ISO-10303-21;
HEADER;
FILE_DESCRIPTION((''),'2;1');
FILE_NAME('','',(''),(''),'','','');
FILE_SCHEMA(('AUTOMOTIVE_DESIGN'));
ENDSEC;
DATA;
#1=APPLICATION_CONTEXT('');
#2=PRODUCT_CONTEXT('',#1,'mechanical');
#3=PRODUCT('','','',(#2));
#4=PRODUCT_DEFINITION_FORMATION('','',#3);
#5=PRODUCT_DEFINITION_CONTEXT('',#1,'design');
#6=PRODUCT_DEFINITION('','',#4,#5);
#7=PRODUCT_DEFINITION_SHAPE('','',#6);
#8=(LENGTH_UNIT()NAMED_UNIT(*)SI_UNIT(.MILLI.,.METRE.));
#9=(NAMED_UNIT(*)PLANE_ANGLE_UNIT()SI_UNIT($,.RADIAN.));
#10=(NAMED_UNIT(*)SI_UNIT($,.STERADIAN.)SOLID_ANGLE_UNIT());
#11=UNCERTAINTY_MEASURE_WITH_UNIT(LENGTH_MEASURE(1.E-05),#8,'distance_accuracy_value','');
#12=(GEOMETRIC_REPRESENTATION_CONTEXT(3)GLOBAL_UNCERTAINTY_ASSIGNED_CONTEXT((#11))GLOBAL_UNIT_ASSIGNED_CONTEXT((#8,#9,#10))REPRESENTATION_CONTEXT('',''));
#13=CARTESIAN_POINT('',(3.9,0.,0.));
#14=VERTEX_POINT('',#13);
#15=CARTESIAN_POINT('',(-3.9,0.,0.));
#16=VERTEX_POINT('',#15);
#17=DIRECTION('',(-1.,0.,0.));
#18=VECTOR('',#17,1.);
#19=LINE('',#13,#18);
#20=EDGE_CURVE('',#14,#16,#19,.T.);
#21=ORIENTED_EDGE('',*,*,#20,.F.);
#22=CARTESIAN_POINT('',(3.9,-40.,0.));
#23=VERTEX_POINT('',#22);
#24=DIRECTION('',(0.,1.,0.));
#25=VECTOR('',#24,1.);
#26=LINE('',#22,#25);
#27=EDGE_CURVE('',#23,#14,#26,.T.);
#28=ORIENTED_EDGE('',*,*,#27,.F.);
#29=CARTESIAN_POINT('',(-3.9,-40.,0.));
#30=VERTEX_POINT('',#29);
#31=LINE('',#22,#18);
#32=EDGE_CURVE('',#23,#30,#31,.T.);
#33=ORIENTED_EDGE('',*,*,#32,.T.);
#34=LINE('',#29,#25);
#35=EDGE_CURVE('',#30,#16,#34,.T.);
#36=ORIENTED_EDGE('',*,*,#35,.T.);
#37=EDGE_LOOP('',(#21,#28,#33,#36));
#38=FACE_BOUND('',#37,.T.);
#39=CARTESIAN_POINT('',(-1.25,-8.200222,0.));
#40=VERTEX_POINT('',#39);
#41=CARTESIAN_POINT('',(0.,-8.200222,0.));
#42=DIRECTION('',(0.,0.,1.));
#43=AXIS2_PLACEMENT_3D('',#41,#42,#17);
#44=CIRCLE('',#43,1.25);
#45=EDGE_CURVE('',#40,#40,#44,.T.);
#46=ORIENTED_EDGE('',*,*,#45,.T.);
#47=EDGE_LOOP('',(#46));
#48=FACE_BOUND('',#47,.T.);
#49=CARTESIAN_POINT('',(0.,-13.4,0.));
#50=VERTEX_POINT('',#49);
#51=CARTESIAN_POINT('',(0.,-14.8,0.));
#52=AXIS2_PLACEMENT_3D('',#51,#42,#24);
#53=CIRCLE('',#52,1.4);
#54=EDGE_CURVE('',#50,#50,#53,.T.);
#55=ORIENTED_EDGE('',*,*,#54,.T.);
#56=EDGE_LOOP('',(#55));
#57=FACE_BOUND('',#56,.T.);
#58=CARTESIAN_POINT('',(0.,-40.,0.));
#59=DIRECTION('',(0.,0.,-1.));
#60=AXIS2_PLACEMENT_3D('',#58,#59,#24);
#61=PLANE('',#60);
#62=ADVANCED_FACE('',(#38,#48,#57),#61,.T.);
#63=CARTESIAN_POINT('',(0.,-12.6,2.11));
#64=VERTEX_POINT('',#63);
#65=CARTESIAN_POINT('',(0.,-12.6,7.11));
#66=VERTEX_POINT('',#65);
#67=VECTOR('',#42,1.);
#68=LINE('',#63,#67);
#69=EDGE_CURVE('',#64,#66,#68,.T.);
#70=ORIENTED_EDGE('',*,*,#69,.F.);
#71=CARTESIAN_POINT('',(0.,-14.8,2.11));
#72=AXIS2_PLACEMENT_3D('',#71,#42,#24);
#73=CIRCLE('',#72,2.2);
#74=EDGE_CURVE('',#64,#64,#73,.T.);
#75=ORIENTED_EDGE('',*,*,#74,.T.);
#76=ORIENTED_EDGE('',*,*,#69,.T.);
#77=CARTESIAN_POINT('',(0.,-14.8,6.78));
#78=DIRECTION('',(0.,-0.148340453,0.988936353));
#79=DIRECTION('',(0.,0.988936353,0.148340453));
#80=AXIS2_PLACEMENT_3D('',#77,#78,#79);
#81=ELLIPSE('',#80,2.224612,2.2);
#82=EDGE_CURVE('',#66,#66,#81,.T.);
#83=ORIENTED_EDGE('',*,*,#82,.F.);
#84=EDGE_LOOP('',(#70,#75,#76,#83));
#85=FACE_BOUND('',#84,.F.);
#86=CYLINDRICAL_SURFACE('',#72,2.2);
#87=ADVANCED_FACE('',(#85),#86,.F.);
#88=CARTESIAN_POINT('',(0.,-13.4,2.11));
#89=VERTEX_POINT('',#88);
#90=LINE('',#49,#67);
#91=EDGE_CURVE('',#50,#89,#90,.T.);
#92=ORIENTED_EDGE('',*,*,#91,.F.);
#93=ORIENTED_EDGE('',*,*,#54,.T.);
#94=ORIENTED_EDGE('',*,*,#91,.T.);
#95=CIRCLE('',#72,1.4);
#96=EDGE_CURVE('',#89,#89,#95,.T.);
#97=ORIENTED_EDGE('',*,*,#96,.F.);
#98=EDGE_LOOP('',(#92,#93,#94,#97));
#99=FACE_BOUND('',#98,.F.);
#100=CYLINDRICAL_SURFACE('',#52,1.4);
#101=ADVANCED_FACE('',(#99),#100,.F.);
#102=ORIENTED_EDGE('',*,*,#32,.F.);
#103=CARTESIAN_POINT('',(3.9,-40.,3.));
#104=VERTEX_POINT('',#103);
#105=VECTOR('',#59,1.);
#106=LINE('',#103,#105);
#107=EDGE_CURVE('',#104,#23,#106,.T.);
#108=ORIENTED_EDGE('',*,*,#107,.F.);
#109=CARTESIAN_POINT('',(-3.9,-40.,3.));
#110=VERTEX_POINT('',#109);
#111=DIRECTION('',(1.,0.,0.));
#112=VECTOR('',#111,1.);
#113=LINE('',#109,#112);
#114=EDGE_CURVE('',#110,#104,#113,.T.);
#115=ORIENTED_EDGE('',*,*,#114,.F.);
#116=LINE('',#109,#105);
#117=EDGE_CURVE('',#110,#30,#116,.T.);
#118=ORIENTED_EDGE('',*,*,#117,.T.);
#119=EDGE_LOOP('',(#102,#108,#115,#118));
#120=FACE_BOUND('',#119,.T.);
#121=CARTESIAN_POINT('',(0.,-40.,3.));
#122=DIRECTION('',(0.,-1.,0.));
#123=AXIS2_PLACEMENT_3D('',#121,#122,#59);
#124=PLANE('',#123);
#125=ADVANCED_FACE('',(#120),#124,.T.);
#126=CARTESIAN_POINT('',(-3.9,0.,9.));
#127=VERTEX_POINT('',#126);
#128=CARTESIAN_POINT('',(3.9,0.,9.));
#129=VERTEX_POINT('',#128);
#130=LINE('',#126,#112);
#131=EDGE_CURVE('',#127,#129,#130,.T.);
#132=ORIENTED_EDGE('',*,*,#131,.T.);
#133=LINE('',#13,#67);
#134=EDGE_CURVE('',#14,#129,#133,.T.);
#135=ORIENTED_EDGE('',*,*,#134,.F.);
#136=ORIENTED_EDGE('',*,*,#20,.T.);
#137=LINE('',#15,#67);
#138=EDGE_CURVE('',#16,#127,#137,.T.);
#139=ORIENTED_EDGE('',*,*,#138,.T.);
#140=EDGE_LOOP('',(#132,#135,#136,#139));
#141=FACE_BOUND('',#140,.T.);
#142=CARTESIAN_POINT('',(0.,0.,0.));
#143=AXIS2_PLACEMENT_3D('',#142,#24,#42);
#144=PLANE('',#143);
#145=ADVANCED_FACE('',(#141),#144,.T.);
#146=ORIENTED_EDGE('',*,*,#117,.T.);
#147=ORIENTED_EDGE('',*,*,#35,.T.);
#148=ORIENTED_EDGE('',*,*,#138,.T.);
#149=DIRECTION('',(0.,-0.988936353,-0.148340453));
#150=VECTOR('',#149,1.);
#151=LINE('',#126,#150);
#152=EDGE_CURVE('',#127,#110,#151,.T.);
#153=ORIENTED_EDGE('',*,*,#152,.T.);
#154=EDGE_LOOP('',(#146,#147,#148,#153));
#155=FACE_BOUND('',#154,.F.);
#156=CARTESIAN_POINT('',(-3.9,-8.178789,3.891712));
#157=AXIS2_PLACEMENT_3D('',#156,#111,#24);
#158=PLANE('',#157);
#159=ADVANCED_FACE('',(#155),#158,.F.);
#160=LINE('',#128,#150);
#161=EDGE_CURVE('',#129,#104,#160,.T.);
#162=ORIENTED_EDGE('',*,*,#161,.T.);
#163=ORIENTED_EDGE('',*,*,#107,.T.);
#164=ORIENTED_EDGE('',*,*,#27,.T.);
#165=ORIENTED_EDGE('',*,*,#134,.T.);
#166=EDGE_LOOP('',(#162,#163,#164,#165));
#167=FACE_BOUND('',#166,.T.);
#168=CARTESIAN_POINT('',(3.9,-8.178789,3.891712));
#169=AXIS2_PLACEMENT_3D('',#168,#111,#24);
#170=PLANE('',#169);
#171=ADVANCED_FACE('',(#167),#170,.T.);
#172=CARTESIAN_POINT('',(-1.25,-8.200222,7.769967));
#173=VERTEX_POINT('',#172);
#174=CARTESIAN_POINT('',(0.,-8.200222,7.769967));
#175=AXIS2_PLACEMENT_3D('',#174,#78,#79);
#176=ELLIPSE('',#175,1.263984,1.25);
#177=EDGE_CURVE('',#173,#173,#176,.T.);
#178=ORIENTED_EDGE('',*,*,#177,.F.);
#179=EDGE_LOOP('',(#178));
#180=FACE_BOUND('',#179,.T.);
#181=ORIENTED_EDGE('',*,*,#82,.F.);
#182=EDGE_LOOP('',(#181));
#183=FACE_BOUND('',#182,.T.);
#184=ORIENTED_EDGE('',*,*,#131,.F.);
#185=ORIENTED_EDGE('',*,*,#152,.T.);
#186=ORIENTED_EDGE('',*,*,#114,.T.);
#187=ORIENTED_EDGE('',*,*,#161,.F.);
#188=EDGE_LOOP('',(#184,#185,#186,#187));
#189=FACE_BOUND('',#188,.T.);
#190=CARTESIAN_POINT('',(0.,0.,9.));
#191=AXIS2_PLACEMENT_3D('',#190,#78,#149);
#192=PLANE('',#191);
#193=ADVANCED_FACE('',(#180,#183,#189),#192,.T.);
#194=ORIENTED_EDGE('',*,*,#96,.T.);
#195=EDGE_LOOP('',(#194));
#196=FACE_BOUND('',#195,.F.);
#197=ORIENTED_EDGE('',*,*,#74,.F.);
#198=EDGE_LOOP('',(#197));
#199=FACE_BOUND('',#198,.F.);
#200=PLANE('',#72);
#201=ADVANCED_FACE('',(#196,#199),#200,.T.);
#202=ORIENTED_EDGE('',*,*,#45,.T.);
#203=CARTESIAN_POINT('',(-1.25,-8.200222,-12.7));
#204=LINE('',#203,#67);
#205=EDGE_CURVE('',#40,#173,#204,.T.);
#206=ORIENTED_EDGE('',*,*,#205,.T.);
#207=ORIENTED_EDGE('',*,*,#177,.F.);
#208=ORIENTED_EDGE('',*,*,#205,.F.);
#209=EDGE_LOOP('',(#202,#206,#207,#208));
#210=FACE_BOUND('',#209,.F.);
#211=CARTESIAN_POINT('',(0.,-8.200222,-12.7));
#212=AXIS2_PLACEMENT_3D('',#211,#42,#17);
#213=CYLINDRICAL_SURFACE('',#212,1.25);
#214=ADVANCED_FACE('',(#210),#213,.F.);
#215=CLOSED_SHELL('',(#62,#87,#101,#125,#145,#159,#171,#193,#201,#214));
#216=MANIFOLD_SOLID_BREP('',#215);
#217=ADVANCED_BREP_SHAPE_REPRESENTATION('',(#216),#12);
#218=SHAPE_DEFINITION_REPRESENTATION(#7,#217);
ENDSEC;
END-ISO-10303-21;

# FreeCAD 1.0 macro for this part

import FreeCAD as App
import Part
import Sketcher

doc = App.newDocument("Part")
body = doc.addObject("PartDesign::Body", "Body")

sketch1 = body.newObject("Sketcher::SketchObject", "Sketch")
sketch1.AttachmentSupport = (doc.getObject("YZ_Plane"), [""])
sketch1.MapMode = "FlatFace"
sketch1.addGeometry([
    Part.LineSegment(App.Vector(0, 0, 0), App.Vector(0, 9, 0)),
    Part.LineSegment(App.Vector(0, 9, 0), App.Vector(-40, 3, 0)),
    Part.LineSegment(App.Vector(-40, 3, 0), App.Vector(-40, 0, 0)),
    Part.LineSegment(App.Vector(-40, 0, 0), App.Vector(0, 0, 0)),
], False)
sketch1.addConstraint([
    Sketcher.Constraint("Coincident", 0, 2, 1, 1),
    Sketcher.Constraint("Coincident", 1, 2, 2, 1),
    Sketcher.Constraint("Coincident", 2, 2, 3, 1),
    Sketcher.Constraint("Coincident", 3, 2, 0, 1),
    Sketcher.Constraint("Vertical", 0),
    Sketcher.Constraint("Vertical", 2),
    Sketcher.Constraint("Horizontal", 3),
    Sketcher.Constraint("Coincident", 3, 2, -1, 1),
    Sketcher.Constraint("DistanceX", 3, 1, 3, 2, 40.0),
    Sketcher.Constraint("DistanceY", 0, 1, 0, 2, 9.0),
    Sketcher.Constraint("DistanceY", 2, 2, 2, 1, 3.0),
])
pad1 = body.newObject("PartDesign::Pad", "Pad")
pad1.Profile = sketch1
pad1.Length = 7.8
pad1.Midplane = True

sketch2 = body.newObject("Sketcher::SketchObject", "Sketch001")
sketch2.AttachmentSupport = (doc.getObject("XY_Plane"), [""])
sketch2.MapMode = "FlatFace"
sketch2.addGeometry(Part.Circle(App.Vector(0, -8.2, 0), App.Vector(0, 0, 1), 1.2), False)
sketch2.addConstraint([
    Sketcher.Constraint("PointOnObject", 0, 3, -2),
    Sketcher.Constraint("Diameter", 0, 2.5),
    Sketcher.Constraint("DistanceY", 0, 3, -1, 1, 8.200222),
])
doc.recompute()
hole = body.newObject("PartDesign::Hole", "Hole")
hole.Profile = sketch2
hole.ThreadType = "None"
hole.Diameter = 2.5
hole.DepthType = "Dimension"
hole.Depth = 12.7
hole.DrillPoint = "Flat"
hole.Reversed = True

sketch3 = body.newObject("Sketcher::SketchObject", "Sketch002")
sketch3.AttachmentSupport = (doc.getObject("XY_Plane"), [""])
sketch3.MapMode = "FlatFace"
sketch3.addGeometry(Part.Circle(App.Vector(0, -14.8, 0), App.Vector(0, 0, 1), 1.2), False)
sketch3.addConstraint([
    Sketcher.Constraint("PointOnObject", 0, 3, -2),
    Sketcher.Constraint("Diameter", 0, 2.5),
    Sketcher.Constraint("DistanceY", 0, 3, -1, 1, 14.799741),
])
doc.recompute()
hole2 = body.newObject("PartDesign::Hole", "Hole001")
hole2.Profile = sketch3
hole2.ThreadType = "None"
hole2.Diameter = 2.5
hole2.DepthType = "Dimension"
hole2.Depth = 12.7
hole2.DrillPoint = "Flat"
hole2.Reversed = True

sketch4 = body.newObject("Sketcher::SketchObject", "Sketch003")
sketch4.AttachmentSupport = (doc.getObject("YZ_Plane"), [""])
sketch4.MapMode = "FlatFace"
sketch4.addGeometry([
    Part.LineSegment(App.Vector(-14.8, 0, 0), App.Vector(-13.4, 0, 0)),
    Part.LineSegment(App.Vector(-13.4, 0, 0), App.Vector(-13.4, 2.1, 0)),
    Part.LineSegment(App.Vector(-13.4, 2.1, 0), App.Vector(-12.6, 2.1, 0)),
    Part.LineSegment(App.Vector(-12.6, 2.1, 0), App.Vector(-12.6, 7.1, 0)),
    Part.LineSegment(App.Vector(-12.6, 7.1, 0), App.Vector(-14.8, 6.8, 0)),
    Part.LineSegment(App.Vector(-14.8, 6.8, 0), App.Vector(-14.8, 0, 0)),
], False)
sketch4.addGeometry(Part.LineSegment(App.Vector(-14.8, 0, 0), App.Vector(-14.8, 7.1, 0)), True)
sketch4.addConstraint([
    Sketcher.Constraint("Coincident", 0, 2, 1, 1),
    Sketcher.Constraint("Coincident", 1, 2, 2, 1),
    Sketcher.Constraint("Coincident", 2, 2, 3, 1),
    Sketcher.Constraint("Coincident", 3, 2, 4, 1),
    Sketcher.Constraint("Coincident", 4, 2, 5, 1),
    Sketcher.Constraint("Coincident", 5, 2, 0, 1),
    Sketcher.Constraint("Horizontal", 0),
    Sketcher.Constraint("Vertical", 1),
    Sketcher.Constraint("Horizontal", 2),
    Sketcher.Constraint("Vertical", 3),
    Sketcher.Constraint("Vertical", 5),
    Sketcher.Constraint("Vertical", 6),
    Sketcher.Constraint("Coincident", 6, 1, 5, 2),
    Sketcher.Constraint("PointOnObject", 0, 2, -1),
    Sketcher.Constraint("Horizontal", 3, 2, 6, 2),
    Sketcher.Constraint("DistanceY", 3, 1, 3, 2, 5.0),
    Sketcher.Constraint("DistanceX", 0, 1, 0, 2, 1.4),
    Sketcher.Constraint("DistanceX", 2, 1, 2, 2, 0.8),
    Sketcher.Constraint("DistanceY", 1, 1, 1, 2, 2.11),
    Sketcher.Constraint("DistanceY", 5, 2, 5, 1, 6.78),
    Sketcher.Constraint("DistanceX", 0, 2, -1, 1, 13.4),
])
groove = body.newObject("PartDesign::Groove", "Groove")
groove.Profile = sketch4
groove.ReferenceAxis = (sketch4, ["Axis0"])
groove.Angle = 360

doc.recompute()
